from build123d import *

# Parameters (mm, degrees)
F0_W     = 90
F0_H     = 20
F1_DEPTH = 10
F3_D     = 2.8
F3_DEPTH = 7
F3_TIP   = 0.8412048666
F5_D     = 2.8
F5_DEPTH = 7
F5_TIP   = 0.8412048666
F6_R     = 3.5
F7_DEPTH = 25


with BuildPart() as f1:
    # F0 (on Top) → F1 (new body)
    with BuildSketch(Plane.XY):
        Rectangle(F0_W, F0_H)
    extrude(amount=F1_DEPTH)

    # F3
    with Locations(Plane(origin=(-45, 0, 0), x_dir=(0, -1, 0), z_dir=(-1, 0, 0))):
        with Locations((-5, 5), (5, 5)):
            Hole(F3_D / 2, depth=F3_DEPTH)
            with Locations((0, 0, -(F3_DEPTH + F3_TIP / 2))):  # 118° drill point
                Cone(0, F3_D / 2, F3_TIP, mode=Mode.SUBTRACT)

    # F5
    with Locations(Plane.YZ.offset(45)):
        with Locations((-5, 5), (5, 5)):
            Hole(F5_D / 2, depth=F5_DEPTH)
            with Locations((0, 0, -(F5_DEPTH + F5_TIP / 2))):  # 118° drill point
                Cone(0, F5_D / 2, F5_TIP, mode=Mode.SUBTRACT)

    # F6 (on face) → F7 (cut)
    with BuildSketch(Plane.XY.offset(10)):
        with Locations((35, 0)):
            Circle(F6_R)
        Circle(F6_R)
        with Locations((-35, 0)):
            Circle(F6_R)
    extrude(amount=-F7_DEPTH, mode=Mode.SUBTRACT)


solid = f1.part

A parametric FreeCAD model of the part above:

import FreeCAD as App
import Part
import Sketcher


def add_polygon(sketch, points):
    """Adds a closed chain of lines whose ends are joined by coincident constraints."""
    first, n = sketch.GeometryCount, len(points)
    for a, b in zip(points, points[1:] + points[:1]):
        sketch.addGeometry(Part.LineSegment(App.Vector(*a, 0), App.Vector(*b, 0)), False)
    for i in range(n):
        sketch.addConstraint(Sketcher.Constraint("Coincident", first + i, 2, first + (i + 1) % n, 1))

doc = App.newDocument("Part")
body = doc.addObject("PartDesign::Body", "Body")

sketch1 = body.newObject("Sketcher::SketchObject", "Sketch")
sketch1.AttachmentSupport = (doc.getObject("XY_Plane"), [""])
sketch1.MapMode = "FlatFace"
add_polygon(sketch1, [(-45, 10), (-45, -10), (45, -10), (45, 10)])
sketch1.addConstraint(Sketcher.Constraint("Vertical", 0))
sketch1.addConstraint(Sketcher.Constraint("Horizontal", 1))
sketch1.addConstraint(Sketcher.Constraint("Vertical", 2))
sketch1.addConstraint(Sketcher.Constraint("Horizontal", 3))
sketch1.addConstraint(Sketcher.Constraint("Symmetric", 0, 2, 2, 2, -1, 1))
sketch1.addConstraint(Sketcher.Constraint("DistanceX", 1, 1, 1, 2, 90.0))
sketch1.addConstraint(Sketcher.Constraint("DistanceY", 0, 2, 0, 1, 20.0))
pad1 = body.newObject("PartDesign::Pad", "Pad")
pad1.Profile = sketch1
pad1.Length = 10

sketch2 = body.newObject("Sketcher::SketchObject", "Sketch001")
sketch2.AttachmentSupport = (doc.getObject("YZ_Plane"), [""])
sketch2.MapMode = "FlatFace"
sketch2.AttachmentOffset = App.Placement(App.Vector(0, 0, -45), App.Rotation())
sketch2.addGeometry(Part.Circle(App.Vector(5, 5, 0), App.Vector(0, 0, 1), 1.4), False)
sketch2.addGeometry(Part.Circle(App.Vector(-5, 5, 0), App.Vector(0, 0, 1), 1.4), False)
sketch2.addConstraint(Sketcher.Constraint("Equal", 0, 1))
sketch2.addConstraint(Sketcher.Constraint("Symmetric", 0, 3, 1, 3, -2))
sketch2.addConstraint(Sketcher.Constraint("Diameter", 0, 2.8))
sketch2.addConstraint(Sketcher.Constraint("DistanceX", -1, 1, 0, 3, 5.0))
sketch2.addConstraint(Sketcher.Constraint("DistanceY", -1, 1, 0, 3, 5.0))
doc.recompute()
hole = body.newObject("PartDesign::Hole", "Hole")
hole.Profile = sketch2
hole.ThreadType = "None"
hole.Diameter = 2.8
hole.DepthType = "Dimension"
hole.Depth = 7
hole.DrillPoint = "Angled"
hole.DrillPointAngle = 118
hole.Reversed = True

sketch3 = body.newObject("Sketcher::SketchObject", "Sketch002")
sketch3.AttachmentSupport = (doc.getObject("YZ_Plane"), [""])
sketch3.MapMode = "FlatFace"
sketch3.AttachmentOffset = App.Placement(App.Vector(0, 0, 45), App.Rotation())
sketch3.addGeometry(Part.Circle(App.Vector(-5, 5, 0), App.Vector(0, 0, 1), 1.4), False)
sketch3.addGeometry(Part.Circle(App.Vector(5, 5, 0), App.Vector(0, 0, 1), 1.4), False)
sketch3.addConstraint(Sketcher.Constraint("Equal", 0, 1))
sketch3.addConstraint(Sketcher.Constraint("Symmetric", 0, 3, 1, 3, -2))
sketch3.addConstraint(Sketcher.Constraint("Diameter", 0, 2.8))
sketch3.addConstraint(Sketcher.Constraint("DistanceX", 0, 3, -1, 1, 5.0))
sketch3.addConstraint(Sketcher.Constraint("DistanceY", -1, 1, 0, 3, 5.0))
doc.recompute()
hole2 = body.newObject("PartDesign::Hole", "Hole001")
hole2.Profile = sketch3
hole2.ThreadType = "None"
hole2.Diameter = 2.8
hole2.DepthType = "Dimension"
hole2.Depth = 7
hole2.DrillPoint = "Angled"
hole2.DrillPointAngle = 118

sketch4 = body.newObject("Sketcher::SketchObject", "Sketch003")
sketch4.AttachmentSupport = (doc.getObject("XY_Plane"), [""])
sketch4.MapMode = "FlatFace"
sketch4.AttachmentOffset = App.Placement(App.Vector(0, 0, 10), App.Rotation())
sketch4.addGeometry(Part.Circle(App.Vector(35, 0, 0), App.Vector(0, 0, 1), 3.5), False)
sketch4.addGeometry(Part.Circle(App.Vector(0, 0, 0), App.Vector(0, 0, 1), 3.5), False)
sketch4.addGeometry(Part.Circle(App.Vector(-35, 0, 0), App.Vector(0, 0, 1), 3.5), False)
sketch4.addConstraint(Sketcher.Constraint("Coincident", 1, 3, -1, 1))
sketch4.addConstraint(Sketcher.Constraint("Equal", 0, 1))
sketch4.addConstraint(Sketcher.Constraint("Equal", 1, 2))
sketch4.addConstraint(Sketcher.Constraint("Symmetric", 0, 3, 2, 3, -1, 1))
sketch4.addConstraint(Sketcher.Constraint("PointOnObject", 0, 3, -1))
sketch4.addConstraint(Sketcher.Constraint("Diameter", 0, 7.0))
sketch4.addConstraint(Sketcher.Constraint("DistanceX", -1, 1, 0, 3, 35.0))
pocket1 = body.newObject("PartDesign::Pocket", "Pocket")
pocket1.Profile = sketch4
pocket1.Length = 25

doc.recompute()
